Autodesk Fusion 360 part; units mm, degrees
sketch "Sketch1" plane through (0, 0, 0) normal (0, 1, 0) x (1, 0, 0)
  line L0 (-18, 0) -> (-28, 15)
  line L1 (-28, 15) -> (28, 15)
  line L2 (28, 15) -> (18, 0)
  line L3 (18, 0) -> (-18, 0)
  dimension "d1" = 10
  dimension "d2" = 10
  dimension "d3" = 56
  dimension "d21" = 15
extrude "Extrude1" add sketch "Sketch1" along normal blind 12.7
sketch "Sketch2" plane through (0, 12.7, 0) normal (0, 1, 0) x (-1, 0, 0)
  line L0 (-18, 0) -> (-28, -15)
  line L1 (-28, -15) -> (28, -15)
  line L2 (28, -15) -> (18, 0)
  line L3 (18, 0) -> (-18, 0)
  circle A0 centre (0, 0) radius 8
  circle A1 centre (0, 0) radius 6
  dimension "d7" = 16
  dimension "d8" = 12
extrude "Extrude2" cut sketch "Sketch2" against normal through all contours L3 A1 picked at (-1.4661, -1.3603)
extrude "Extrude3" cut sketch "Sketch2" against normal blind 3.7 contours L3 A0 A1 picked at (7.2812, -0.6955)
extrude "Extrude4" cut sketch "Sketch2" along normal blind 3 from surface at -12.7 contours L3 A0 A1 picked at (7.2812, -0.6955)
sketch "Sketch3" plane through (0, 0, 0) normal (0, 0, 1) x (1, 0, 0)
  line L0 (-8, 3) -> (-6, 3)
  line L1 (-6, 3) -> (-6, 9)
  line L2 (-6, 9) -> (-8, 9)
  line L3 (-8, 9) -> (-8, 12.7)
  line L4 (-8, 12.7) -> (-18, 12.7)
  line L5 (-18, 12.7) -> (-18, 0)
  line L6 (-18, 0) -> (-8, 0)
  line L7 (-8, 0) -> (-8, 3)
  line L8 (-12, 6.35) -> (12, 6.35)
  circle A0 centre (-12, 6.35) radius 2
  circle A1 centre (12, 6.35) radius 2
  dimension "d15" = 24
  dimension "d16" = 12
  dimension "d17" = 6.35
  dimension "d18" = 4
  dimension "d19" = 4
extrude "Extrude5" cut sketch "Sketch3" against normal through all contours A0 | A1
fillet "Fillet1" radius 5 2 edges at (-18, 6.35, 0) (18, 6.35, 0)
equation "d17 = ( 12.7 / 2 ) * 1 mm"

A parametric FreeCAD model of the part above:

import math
import FreeCAD as App
import Part
import Sketcher


def edges_at(feature, points):
    """Names of the edges that pass closest to the given points."""
    edges = feature.Shape.Edges
    near = lambda p: min(range(len(edges)), key=lambda i: edges[i].distToShape(Part.Vertex(*p))[0])
    return sorted({f"Edge{near(p) + 1}" for p in points})


def add_polygon(sketch, points):
    """Adds a closed chain of lines whose ends are joined by coincident constraints."""
    first, n = sketch.GeometryCount, len(points)
    for a, b in zip(points, points[1:] + points[:1]):
        sketch.addGeometry(Part.LineSegment(App.Vector(*a, 0), App.Vector(*b, 0)), False)
    for i in range(n):
        sketch.addConstraint(Sketcher.Constraint("Coincident", first + i, 2, first + (i + 1) % n, 1))

doc = App.newDocument("Part")
body = doc.addObject("PartDesign::Body", "Body")

sketch1 = body.newObject("Sketcher::SketchObject", "Sketch")
sketch1.AttachmentSupport = (doc.getObject("XZ_Plane"), [""])
sketch1.MapMode = "FlatFace"
add_polygon(sketch1, [(-28, -15), (-18, 0), (18, 0), (28, -15)])
sketch1.addConstraint([
    Sketcher.Constraint("Horizontal", 1),
    Sketcher.Constraint("Horizontal", 3),
    Sketcher.Constraint("Symmetric", 0, 2, 1, 2, -1, 1),
    Sketcher.Constraint("Equal", 0, 2),
    Sketcher.Constraint("DistanceX", 3, 2, 3, 1, 56.0),
    Sketcher.Constraint("DistanceY", 2, 2, -1, 1, 15.0),
    Sketcher.Constraint("DistanceX", 1, 2, 2, 2, 10.0),
])
pad1 = body.newObject("PartDesign::Pad", "Pad")
pad1.Profile = sketch1
pad1.Length = 12.7
pad1.Reversed = True

sketch2 = body.newObject("Sketcher::SketchObject", "Sketch001")
sketch2.AttachmentSupport = (doc.getObject("XZ_Plane"), [""])
sketch2.MapMode = "FlatFace"
sketch2.AttachmentOffset = App.Placement(App.Vector(0, 0, -12.7), App.Rotation())
sketch2.addGeometry([
    Part.LineSegment(App.Vector(-6, 0, 0), App.Vector(6, 0, 0)),
    Part.ArcOfCircle(Part.Circle(App.Vector(0, 0, 0), App.Vector(0, 0, 1), 6), math.radians(180), math.radians(360)),
], False)
sketch2.addConstraint([
    Sketcher.Constraint("Coincident", 0, 1, 1, 1),
    Sketcher.Constraint("Coincident", 1, 2, 0, 2),
    Sketcher.Constraint("Horizontal", 0),
    Sketcher.Constraint("Coincident", 1, 3, -1, 1),
    Sketcher.Constraint("PointOnObject", 0, 1, -1),
    Sketcher.Constraint("Radius", 1, 6.0),
])
pocket1 = body.newObject("PartDesign::Pocket", "Pocket")
pocket1.Profile = sketch2
pocket1.Type = "ThroughAll"
pocket1.Reversed = True

sketch3 = body.newObject("Sketcher::SketchObject", "Sketch002")
sketch3.AttachmentSupport = (doc.getObject("XZ_Plane"), [""])
sketch3.MapMode = "FlatFace"
sketch3.AttachmentOffset = App.Placement(App.Vector(0, 0, -12.7), App.Rotation())
sketch3.addGeometry([
    Part.LineSegment(App.Vector(6, 0, 0), App.Vector(8, 0, 0)),
    Part.ArcOfCircle(Part.Circle(App.Vector(0, 0, 0), App.Vector(0, 0, 1), 8), math.radians(180), math.radians(360)),
    Part.LineSegment(App.Vector(-8, 0, 0), App.Vector(-6, 0, 0)),
    Part.ArcOfCircle(Part.Circle(App.Vector(0, 0, 0), App.Vector(0, 0, 1), 6), math.radians(180), math.radians(360)),
], False)
sketch3.addConstraint([
    Sketcher.Constraint("Coincident", 0, 2, 1, 2),
    Sketcher.Constraint("Coincident", 1, 1, 2, 1),
    Sketcher.Constraint("Coincident", 2, 2, 3, 1),
    Sketcher.Constraint("Coincident", 3, 2, 0, 1),
    Sketcher.Constraint("Horizontal", 0),
    Sketcher.Constraint("Horizontal", 2),
    Sketcher.Constraint("Coincident", 1, 3, -1, 1),
    Sketcher.Constraint("Coincident", 3, 3, -1, 1),
    Sketcher.Constraint("PointOnObject", 0, 2, -1),
    Sketcher.Constraint("PointOnObject", 1, 1, -1),
    Sketcher.Constraint("Radius", 1, 8.0),
    Sketcher.Constraint("Radius", 3, 6.0),
])
pocket2 = body.newObject("PartDesign::Pocket", "Pocket001")
pocket2.Profile = sketch3
pocket2.Length = 3.7
pocket2.Reversed = True

sketch4 = body.newObject("Sketcher::SketchObject", "Sketch003")
sketch4.AttachmentSupport = (doc.getObject("XZ_Plane"), [""])
sketch4.MapMode = "FlatFace"
sketch4.addGeometry([
    Part.LineSegment(App.Vector(6, 0, 0), App.Vector(8, 0, 0)),
    Part.ArcOfCircle(Part.Circle(App.Vector(0, 0, 0), App.Vector(0, 0, 1), 8), math.radians(180), math.radians(360)),
    Part.LineSegment(App.Vector(-8, 0, 0), App.Vector(-6, 0, 0)),
    Part.ArcOfCircle(Part.Circle(App.Vector(0, 0, 0), App.Vector(0, 0, 1), 6), math.radians(180), math.radians(360)),
], False)
sketch4.addConstraint([
    Sketcher.Constraint("Coincident", 0, 2, 1, 2),
    Sketcher.Constraint("Coincident", 1, 1, 2, 1),
    Sketcher.Constraint("Coincident", 2, 2, 3, 1),
    Sketcher.Constraint("Coincident", 3, 2, 0, 1),
    Sketcher.Constraint("Horizontal", 0),
    Sketcher.Constraint("Horizontal", 2),
    Sketcher.Constraint("Coincident", 1, 3, -1, 1),
    Sketcher.Constraint("Coincident", 3, 3, -1, 1),
    Sketcher.Constraint("PointOnObject", 0, 2, -1),
    Sketcher.Constraint("PointOnObject", 1, 1, -1),
    Sketcher.Constraint("Radius", 1, 8.0),
    Sketcher.Constraint("Radius", 3, 6.0),
])
pocket3 = body.newObject("PartDesign::Pocket", "Pocket002")
pocket3.Profile = sketch4
pocket3.Length = 3

sketch5 = body.newObject("Sketcher::SketchObject", "Sketch004")
sketch5.AttachmentSupport = (doc.getObject("XY_Plane"), [""])
sketch5.MapMode = "FlatFace"
sketch5.addGeometry([
    Part.Circle(App.Vector(-12, 6.35, 0), App.Vector(0, 0, 1), 2),
    Part.Circle(App.Vector(12, 6.35, 0), App.Vector(0, 0, 1), 2),
], False)
sketch5.addConstraint([
    Sketcher.Constraint("Equal", 0, 1),
    Sketcher.Constraint("Symmetric", 0, 3, 1, 3, -2),
    Sketcher.Constraint("Diameter", 0, 4.0),
    Sketcher.Constraint("DistanceX", 0, 3, -1, 1, 12.0),
    Sketcher.Constraint("DistanceY", -1, 1, 0, 3, 6.35),
])
pocket4 = body.newObject("PartDesign::Pocket", "Pocket003")
pocket4.Profile = sketch5
pocket4.Type = "ThroughAll"
doc.recompute()

fillet = body.newObject("PartDesign::Fillet", "Fillet")
fillet.Base = (pocket4, edges_at(pocket4, [(-18, 6.35, 0), (18, 6.35, 0)]))
fillet.Radius = 5

doc.recompute()
